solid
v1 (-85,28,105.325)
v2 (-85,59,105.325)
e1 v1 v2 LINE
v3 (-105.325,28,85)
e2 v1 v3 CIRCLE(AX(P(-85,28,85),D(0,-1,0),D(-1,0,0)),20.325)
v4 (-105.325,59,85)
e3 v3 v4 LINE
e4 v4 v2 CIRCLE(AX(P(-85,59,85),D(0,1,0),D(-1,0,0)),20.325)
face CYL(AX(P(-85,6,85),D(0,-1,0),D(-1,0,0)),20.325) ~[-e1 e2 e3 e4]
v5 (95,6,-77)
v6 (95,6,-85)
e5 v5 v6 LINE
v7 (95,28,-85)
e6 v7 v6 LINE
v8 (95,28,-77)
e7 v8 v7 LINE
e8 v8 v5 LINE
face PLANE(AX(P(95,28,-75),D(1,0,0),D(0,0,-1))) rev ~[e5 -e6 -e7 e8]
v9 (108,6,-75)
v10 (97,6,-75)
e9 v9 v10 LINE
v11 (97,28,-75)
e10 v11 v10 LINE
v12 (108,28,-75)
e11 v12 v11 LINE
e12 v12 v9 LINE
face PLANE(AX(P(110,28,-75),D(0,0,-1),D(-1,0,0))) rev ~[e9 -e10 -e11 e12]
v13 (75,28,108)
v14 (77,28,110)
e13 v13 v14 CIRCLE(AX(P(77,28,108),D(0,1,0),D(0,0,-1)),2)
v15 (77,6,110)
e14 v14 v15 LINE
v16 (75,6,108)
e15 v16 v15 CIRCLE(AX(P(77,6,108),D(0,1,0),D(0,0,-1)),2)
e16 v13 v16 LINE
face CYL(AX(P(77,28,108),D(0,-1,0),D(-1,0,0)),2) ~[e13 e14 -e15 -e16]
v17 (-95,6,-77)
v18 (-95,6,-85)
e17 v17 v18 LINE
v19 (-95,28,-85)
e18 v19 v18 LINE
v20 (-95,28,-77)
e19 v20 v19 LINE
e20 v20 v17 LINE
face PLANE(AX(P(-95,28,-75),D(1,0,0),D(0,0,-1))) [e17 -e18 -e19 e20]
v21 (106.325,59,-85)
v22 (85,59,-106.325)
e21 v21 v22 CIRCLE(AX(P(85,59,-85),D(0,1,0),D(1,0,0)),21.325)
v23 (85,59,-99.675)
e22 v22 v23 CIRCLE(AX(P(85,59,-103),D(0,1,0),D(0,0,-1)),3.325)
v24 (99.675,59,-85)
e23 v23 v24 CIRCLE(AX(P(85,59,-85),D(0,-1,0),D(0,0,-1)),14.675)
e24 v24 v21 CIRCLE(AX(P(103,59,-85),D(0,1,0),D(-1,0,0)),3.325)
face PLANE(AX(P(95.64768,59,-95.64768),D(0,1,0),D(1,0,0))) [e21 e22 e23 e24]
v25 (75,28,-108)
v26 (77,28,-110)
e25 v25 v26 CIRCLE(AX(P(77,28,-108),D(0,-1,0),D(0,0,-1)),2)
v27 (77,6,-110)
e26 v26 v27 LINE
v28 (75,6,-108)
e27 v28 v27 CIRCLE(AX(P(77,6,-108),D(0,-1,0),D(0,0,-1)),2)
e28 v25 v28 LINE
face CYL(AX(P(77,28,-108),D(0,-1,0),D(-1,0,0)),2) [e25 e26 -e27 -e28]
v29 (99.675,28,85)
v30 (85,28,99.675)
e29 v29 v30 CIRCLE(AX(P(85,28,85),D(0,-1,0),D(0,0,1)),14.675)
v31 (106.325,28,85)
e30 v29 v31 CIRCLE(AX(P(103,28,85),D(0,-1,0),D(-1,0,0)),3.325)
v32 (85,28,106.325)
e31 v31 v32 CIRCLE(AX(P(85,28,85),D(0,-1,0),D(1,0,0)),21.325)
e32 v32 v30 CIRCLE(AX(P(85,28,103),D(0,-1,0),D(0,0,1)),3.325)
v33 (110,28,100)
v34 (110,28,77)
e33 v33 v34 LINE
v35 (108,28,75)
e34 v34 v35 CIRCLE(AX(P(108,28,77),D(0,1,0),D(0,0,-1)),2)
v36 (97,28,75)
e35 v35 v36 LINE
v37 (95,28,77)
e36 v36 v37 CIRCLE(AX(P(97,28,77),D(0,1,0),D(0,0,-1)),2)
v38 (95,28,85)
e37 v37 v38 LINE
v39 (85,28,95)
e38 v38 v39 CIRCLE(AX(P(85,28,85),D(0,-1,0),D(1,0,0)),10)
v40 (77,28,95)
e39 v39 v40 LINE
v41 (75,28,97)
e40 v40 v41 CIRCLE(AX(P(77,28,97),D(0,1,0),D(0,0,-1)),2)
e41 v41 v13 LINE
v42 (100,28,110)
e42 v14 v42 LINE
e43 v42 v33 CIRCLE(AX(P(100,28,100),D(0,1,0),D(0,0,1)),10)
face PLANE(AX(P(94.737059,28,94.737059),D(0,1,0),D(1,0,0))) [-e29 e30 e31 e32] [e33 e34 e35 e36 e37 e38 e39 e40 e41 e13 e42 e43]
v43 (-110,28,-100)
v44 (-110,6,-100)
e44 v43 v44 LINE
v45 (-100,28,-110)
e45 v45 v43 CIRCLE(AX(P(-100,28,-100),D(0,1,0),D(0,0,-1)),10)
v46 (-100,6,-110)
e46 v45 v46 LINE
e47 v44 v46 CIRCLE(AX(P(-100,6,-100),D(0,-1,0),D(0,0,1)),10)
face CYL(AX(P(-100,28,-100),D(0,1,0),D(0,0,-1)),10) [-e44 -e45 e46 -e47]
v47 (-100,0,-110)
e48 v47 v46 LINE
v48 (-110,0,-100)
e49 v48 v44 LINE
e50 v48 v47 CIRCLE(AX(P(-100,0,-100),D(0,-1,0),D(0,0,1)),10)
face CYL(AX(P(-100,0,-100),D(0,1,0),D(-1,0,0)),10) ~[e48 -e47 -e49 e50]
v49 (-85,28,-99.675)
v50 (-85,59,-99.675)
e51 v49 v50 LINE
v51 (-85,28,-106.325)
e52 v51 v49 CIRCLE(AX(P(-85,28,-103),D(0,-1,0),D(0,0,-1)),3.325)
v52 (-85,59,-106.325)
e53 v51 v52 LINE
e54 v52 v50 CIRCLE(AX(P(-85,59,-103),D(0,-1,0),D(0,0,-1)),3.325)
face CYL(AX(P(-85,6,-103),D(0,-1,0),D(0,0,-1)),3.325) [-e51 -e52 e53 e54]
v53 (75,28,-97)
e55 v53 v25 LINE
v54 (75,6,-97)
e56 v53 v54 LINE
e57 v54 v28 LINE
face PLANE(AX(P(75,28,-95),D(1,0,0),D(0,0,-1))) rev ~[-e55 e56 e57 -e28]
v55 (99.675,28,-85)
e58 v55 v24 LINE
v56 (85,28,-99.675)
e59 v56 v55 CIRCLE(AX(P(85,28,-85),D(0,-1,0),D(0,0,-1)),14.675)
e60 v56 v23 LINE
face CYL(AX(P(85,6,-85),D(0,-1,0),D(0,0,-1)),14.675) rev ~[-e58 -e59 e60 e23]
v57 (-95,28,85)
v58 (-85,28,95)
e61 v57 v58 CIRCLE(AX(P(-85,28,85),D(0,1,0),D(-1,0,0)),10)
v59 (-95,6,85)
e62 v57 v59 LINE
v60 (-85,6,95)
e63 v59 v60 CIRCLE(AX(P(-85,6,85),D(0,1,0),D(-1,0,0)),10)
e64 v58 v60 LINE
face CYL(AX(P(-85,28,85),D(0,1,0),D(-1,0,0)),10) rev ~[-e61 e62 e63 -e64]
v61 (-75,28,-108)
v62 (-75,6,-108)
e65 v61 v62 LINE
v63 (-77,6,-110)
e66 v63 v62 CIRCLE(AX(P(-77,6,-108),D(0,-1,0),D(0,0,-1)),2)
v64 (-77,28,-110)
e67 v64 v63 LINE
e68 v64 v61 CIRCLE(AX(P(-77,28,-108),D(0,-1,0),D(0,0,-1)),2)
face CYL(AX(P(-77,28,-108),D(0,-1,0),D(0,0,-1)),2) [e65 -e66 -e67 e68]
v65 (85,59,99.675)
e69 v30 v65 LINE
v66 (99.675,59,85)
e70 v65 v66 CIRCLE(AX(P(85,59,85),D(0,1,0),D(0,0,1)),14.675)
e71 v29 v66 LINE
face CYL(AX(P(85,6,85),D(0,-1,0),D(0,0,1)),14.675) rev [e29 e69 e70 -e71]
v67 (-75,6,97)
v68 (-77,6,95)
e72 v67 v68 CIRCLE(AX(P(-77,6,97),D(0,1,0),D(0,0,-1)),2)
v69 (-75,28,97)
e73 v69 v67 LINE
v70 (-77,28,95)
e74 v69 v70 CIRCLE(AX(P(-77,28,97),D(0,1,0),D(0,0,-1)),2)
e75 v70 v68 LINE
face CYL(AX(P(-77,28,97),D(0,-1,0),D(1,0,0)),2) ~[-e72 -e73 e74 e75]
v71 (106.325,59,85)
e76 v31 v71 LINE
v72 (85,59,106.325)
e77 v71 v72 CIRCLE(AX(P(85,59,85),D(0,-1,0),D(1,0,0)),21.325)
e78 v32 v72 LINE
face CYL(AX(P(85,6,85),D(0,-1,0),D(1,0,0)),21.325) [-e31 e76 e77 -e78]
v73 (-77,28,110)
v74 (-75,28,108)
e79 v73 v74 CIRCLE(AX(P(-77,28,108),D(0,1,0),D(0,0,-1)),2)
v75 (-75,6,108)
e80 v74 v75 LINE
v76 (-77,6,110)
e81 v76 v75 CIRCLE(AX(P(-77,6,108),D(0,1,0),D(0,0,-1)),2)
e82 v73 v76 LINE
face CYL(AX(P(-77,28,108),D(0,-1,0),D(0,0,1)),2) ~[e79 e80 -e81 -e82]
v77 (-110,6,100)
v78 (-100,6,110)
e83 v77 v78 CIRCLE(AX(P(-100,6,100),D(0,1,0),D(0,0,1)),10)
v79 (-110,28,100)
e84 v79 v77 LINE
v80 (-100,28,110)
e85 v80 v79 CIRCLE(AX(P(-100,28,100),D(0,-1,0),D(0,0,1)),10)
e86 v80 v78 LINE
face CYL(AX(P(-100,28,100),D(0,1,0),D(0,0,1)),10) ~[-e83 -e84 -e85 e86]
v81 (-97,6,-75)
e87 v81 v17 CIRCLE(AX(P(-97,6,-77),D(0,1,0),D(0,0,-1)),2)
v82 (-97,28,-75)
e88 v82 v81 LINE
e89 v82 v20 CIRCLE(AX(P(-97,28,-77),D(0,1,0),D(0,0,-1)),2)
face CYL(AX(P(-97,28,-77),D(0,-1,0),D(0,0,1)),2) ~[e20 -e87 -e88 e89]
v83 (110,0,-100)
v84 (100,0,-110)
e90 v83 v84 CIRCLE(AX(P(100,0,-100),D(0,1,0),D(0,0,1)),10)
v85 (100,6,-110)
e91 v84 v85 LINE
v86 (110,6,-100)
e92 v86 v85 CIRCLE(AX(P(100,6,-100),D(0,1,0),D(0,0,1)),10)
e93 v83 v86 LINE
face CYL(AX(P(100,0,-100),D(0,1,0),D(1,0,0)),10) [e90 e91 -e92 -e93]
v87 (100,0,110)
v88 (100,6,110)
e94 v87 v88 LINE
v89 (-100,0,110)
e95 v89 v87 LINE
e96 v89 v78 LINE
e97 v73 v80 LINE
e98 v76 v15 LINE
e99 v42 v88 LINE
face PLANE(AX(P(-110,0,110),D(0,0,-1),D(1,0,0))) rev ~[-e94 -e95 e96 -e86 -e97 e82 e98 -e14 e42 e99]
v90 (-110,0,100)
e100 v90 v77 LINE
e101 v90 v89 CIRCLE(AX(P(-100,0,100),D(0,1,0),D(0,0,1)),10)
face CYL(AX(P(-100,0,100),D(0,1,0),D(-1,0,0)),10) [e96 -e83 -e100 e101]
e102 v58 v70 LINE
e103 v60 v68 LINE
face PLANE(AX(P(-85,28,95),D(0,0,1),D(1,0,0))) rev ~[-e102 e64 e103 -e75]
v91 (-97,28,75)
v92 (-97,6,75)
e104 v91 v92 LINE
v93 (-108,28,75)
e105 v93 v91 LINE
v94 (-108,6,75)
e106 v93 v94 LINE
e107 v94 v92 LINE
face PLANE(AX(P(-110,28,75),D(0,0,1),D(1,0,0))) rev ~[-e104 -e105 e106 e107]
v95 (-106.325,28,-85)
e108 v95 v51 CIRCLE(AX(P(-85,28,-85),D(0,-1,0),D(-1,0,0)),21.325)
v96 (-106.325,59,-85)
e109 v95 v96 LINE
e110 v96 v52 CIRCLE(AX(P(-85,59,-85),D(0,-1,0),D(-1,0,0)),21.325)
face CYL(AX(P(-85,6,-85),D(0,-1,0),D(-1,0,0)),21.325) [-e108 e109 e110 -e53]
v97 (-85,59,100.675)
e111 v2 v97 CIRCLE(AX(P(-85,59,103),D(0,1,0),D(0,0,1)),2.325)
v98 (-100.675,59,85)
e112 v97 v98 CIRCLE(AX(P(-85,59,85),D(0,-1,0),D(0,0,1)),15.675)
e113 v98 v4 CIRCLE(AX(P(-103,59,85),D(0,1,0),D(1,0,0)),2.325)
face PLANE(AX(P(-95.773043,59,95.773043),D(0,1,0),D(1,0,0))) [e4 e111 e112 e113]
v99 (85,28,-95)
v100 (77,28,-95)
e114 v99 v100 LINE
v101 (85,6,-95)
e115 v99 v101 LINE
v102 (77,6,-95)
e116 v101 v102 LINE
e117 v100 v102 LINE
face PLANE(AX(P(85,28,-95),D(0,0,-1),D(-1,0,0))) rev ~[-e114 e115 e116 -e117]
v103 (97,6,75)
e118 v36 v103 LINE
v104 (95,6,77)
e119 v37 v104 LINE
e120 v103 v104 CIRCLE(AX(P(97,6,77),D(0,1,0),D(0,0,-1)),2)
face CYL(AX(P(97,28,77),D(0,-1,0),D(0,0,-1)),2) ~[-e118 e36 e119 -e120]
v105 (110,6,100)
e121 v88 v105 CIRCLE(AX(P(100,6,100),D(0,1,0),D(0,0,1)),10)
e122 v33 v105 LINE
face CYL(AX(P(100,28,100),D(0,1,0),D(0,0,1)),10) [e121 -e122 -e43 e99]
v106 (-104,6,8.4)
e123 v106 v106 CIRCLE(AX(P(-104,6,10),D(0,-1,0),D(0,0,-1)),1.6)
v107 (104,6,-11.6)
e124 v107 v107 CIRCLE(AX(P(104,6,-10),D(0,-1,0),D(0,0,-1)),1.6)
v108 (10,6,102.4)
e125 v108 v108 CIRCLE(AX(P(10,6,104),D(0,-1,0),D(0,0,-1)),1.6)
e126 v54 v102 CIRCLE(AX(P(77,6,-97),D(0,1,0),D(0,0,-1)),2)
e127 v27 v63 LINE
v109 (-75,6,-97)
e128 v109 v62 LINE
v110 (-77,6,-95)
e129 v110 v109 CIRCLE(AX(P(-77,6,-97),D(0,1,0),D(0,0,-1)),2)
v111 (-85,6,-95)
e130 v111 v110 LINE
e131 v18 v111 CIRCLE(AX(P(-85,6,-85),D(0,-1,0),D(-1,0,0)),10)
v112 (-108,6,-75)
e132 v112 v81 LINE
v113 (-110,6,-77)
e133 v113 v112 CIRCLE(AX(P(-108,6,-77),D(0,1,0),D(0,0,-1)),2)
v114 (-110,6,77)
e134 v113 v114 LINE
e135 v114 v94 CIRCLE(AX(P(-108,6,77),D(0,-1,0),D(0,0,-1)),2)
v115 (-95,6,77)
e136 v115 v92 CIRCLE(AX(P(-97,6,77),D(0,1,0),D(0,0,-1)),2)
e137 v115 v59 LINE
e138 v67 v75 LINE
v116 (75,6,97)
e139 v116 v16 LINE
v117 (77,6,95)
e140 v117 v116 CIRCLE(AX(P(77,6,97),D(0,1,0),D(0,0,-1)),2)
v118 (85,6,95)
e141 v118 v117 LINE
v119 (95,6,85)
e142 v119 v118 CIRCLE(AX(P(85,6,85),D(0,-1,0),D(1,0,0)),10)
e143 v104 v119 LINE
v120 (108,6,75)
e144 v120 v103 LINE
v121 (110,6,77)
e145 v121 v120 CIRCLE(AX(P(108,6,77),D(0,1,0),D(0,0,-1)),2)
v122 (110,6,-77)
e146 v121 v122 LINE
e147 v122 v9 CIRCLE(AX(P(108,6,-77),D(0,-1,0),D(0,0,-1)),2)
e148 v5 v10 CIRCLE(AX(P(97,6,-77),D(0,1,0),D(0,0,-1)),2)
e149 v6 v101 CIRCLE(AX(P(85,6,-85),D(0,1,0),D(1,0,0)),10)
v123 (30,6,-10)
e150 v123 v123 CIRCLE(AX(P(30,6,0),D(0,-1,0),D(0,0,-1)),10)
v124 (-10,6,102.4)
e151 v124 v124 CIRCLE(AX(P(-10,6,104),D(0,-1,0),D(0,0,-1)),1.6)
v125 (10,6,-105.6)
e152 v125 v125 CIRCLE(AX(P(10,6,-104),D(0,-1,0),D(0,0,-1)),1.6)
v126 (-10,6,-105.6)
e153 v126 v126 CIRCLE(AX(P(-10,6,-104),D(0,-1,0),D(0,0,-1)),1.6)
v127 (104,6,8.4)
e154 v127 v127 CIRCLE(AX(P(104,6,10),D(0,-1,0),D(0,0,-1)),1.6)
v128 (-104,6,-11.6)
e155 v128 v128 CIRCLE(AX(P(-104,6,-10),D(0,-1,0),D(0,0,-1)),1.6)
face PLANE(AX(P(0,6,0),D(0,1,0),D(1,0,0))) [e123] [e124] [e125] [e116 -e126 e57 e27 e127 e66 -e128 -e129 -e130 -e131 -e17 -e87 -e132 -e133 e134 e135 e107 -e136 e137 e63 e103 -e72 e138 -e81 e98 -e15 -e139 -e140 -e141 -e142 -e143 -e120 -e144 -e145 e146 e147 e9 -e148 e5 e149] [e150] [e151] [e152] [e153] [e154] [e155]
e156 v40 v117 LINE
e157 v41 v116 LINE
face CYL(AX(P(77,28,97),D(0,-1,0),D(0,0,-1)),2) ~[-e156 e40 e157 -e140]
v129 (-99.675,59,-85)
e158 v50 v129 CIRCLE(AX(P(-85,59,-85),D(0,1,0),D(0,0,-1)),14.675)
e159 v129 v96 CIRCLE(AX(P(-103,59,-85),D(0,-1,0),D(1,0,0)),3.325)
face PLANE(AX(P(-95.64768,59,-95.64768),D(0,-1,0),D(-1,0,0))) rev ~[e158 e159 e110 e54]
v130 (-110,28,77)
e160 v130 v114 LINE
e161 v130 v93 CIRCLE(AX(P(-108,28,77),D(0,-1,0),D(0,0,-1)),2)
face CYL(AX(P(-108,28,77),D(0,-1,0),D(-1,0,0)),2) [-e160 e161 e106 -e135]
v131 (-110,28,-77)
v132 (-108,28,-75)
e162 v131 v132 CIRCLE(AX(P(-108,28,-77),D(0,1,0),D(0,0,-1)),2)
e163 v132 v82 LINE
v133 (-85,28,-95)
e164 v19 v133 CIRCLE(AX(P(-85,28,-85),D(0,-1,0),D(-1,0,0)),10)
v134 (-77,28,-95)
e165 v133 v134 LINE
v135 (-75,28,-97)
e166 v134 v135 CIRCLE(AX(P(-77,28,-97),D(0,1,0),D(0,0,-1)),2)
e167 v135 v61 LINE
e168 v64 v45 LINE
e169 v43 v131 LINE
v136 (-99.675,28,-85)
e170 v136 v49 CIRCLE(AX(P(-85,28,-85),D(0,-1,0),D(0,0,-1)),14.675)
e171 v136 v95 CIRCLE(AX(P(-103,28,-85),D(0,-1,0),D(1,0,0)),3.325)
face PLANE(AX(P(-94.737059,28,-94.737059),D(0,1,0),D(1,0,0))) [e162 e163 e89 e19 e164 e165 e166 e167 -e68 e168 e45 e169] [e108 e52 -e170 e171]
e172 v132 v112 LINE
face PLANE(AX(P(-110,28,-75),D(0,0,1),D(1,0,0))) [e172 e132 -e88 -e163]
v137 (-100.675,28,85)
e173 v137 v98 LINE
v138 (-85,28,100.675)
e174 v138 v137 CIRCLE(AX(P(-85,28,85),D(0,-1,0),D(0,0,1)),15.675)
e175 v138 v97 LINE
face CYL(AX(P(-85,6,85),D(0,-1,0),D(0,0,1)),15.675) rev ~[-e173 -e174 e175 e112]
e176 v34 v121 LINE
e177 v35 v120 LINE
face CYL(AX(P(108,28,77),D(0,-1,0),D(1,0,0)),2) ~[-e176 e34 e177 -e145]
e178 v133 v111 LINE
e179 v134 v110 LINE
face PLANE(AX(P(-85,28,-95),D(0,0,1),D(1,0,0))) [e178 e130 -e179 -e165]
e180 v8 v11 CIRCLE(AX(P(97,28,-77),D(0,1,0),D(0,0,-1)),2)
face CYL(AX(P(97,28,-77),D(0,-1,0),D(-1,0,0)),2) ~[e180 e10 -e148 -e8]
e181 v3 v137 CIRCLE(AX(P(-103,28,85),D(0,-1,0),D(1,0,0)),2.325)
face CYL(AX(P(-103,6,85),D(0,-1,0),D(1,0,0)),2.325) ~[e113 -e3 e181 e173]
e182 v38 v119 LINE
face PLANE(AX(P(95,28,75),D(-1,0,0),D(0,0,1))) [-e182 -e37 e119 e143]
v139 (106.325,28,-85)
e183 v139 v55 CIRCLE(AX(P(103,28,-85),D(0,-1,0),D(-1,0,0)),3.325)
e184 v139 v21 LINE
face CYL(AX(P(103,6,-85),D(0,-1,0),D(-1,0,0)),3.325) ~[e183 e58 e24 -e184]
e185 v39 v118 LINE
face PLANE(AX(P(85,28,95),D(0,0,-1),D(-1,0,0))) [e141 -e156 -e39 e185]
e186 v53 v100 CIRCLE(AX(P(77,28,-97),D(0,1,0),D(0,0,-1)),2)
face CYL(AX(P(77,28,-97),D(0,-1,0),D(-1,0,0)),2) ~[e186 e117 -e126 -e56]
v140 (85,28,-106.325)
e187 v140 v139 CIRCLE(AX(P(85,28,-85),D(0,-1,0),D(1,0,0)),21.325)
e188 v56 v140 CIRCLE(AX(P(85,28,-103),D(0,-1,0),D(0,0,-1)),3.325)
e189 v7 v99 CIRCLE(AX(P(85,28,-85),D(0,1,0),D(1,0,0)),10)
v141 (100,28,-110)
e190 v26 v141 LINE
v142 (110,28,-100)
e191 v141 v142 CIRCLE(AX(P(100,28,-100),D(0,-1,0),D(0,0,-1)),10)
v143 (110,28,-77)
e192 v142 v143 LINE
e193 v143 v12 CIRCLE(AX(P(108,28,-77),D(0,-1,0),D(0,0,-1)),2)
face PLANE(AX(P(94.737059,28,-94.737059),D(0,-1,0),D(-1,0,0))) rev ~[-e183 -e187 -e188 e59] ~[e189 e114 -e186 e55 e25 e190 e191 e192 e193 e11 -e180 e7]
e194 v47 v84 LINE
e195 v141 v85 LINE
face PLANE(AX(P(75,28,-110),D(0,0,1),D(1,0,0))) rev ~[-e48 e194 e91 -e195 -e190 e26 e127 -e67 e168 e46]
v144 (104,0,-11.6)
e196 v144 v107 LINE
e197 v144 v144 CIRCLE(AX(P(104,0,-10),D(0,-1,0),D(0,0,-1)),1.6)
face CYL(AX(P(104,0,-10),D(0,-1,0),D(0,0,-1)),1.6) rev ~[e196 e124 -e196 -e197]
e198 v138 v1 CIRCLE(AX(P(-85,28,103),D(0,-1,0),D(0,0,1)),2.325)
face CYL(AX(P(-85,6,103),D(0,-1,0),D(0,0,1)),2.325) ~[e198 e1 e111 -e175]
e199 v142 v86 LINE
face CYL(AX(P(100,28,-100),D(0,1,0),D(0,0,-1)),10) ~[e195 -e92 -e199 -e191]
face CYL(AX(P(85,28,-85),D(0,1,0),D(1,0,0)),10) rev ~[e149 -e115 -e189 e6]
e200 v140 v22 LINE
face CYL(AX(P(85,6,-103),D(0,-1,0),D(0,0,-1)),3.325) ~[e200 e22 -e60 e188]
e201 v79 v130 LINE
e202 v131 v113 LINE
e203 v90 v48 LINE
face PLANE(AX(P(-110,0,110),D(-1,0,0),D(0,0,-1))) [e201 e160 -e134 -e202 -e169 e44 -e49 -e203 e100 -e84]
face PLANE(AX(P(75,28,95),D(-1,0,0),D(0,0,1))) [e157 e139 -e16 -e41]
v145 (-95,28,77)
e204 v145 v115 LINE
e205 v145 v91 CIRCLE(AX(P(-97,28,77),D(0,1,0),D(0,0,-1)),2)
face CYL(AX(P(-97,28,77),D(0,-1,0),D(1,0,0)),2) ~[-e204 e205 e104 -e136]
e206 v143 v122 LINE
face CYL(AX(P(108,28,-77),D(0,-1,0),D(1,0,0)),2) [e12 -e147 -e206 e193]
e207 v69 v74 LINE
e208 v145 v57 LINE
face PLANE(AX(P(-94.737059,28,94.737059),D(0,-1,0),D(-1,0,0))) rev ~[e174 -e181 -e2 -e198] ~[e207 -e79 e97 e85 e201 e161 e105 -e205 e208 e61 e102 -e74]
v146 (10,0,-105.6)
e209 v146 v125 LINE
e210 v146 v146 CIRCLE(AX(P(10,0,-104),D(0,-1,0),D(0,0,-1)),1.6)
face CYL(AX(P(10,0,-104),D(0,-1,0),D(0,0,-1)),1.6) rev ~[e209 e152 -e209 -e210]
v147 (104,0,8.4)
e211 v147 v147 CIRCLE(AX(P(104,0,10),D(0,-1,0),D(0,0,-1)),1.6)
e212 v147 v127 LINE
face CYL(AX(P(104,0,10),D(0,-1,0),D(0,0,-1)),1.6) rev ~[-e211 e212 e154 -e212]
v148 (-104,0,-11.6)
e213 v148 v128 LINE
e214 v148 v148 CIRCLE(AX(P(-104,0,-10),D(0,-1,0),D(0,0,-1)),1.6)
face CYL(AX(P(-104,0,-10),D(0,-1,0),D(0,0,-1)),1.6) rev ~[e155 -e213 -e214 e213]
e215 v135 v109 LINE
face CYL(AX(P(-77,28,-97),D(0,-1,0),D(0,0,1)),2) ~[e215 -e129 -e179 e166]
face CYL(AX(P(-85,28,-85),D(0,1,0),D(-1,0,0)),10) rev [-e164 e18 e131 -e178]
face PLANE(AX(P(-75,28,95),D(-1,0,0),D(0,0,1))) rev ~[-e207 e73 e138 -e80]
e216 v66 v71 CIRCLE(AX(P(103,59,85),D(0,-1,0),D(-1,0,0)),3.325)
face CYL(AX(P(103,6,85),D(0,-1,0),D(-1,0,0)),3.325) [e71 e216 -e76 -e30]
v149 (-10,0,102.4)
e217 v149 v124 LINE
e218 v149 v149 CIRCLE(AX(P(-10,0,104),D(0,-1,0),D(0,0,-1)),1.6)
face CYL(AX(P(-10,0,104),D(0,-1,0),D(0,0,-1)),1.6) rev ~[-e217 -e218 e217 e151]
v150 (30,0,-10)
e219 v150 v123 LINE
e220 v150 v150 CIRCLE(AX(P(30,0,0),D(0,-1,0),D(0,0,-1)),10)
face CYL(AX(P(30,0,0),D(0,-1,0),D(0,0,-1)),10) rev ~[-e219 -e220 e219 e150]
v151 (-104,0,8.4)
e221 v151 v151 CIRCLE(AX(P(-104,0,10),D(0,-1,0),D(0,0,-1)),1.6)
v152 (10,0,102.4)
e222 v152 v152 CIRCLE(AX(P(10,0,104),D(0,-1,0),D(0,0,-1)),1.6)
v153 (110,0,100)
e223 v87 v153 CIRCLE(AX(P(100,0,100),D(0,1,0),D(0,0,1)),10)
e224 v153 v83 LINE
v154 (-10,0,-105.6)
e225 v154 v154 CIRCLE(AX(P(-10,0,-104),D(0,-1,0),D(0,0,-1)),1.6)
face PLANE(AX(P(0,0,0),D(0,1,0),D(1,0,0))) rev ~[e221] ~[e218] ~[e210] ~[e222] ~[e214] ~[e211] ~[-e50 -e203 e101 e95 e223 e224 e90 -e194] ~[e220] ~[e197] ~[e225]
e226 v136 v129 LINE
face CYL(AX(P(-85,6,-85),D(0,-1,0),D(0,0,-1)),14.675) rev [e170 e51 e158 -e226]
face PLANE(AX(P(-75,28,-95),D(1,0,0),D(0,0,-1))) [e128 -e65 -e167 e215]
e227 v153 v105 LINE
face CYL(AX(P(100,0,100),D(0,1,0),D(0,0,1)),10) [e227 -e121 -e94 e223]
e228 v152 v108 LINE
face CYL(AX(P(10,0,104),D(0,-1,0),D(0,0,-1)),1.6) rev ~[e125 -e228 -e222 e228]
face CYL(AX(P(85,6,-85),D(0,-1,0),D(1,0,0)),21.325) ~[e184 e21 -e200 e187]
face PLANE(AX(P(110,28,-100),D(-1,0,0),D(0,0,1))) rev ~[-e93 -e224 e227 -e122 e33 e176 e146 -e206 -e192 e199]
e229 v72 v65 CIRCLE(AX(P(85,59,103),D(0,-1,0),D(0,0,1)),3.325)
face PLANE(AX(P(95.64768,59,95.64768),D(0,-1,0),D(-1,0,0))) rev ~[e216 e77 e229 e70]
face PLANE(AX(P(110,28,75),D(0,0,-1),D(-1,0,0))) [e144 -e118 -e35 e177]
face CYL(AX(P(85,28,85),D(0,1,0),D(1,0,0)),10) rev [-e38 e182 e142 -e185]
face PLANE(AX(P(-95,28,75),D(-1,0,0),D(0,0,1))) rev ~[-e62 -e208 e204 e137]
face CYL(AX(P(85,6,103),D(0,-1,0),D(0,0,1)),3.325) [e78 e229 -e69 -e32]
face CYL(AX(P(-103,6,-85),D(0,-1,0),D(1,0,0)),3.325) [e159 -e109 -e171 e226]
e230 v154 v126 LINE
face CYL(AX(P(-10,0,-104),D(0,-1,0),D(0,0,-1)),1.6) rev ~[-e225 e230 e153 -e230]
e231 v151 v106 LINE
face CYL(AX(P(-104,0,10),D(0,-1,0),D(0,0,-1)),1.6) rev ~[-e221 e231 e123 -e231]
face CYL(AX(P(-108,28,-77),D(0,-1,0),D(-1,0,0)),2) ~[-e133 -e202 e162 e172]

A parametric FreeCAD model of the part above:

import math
import FreeCAD as App
import Part
import Sketcher

V = App.Vector
Q = App.Units.Quantity


def edges_at(feature, points):
    """Names of the edges that pass closest to the given points."""
    edges = feature.Shape.Edges
    near = lambda p: min(range(len(edges)), key=lambda i: edges[i].distToShape(Part.Vertex(*p))[0])
    return sorted({f"Edge{near(p) + 1}" for p in points})

doc = App.newDocument("Part")
body = doc.addObject("PartDesign::Body", "Body")

# Sketch on XZ plane
sketch1 = body.newObject("Sketcher::SketchObject", "Sketch")
sketch1.AttachmentSupport = (doc.getObject("XZ_Plane"), [""])
sketch1.MapMode = "FlatFace"
sketch1.addGeometry(Part.LineSegment(V(-110, -110, 0), V(-110, 110, 0)), False)
sketch1.addGeometry(Part.LineSegment(V(-110, 110, 0), V(110, 110, 0)), False)
sketch1.addGeometry(Part.LineSegment(V(110, 110, 0), V(110, -110, 0)), False)
sketch1.addGeometry(Part.LineSegment(V(110, -110, 0), V(-110, -110, 0)), False)
sketch1.addConstraint(Sketcher.Constraint("Coincident", 0, 2, 1, 1))
sketch1.addConstraint(Sketcher.Constraint("Coincident", 1, 2, 2, 1))
sketch1.addConstraint(Sketcher.Constraint("Coincident", 2, 2, 3, 1))
sketch1.addConstraint(Sketcher.Constraint("Coincident", 3, 2, 0, 1))
sketch1.addConstraint(Sketcher.Constraint("Vertical", 0))
sketch1.addConstraint(Sketcher.Constraint("Horizontal", 1))
sketch1.addConstraint(Sketcher.Constraint("Vertical", 2))
sketch1.addConstraint(Sketcher.Constraint("Horizontal", 3))
sketch1.addConstraint(Sketcher.Constraint("Symmetric", 0, 2, 2, 2, -1, 1))
sketch1.addConstraint(Sketcher.Constraint("Equal", 3, 0))
sketch1.addConstraint(Sketcher.Constraint("DistanceX", 1, 1, 1, 2, Q("220 mm")))
pad1 = body.newObject("PartDesign::Pad", "Pad")
pad1.Profile = sketch1
pad1.Length = 6
pad1.Reversed = True
doc.recompute()

fillet = body.newObject("PartDesign::Fillet", "Fillet")
fillet.Base = (pad1, edges_at(pad1, [
    (110, 3, 110),
    (-110, 3, 110),
    (-110, 3, -110),
    (110, 3, -110),
]))
fillet.Radius = 10

# Sketch on XZ plane
sketch2 = body.newObject("Sketcher::SketchObject", "Sketch001")
sketch2.AttachmentSupport = (doc.getObject("XZ_Plane"), [""])
sketch2.MapMode = "FlatFace"
sketch2.AttachmentOffset = App.Placement(V(0, 0, -6), App.Rotation())
sketch2.addGeometry(Part.ArcOfCircle(Part.Circle(V(-85, 85, 0), V(0, 0, 1), 20.3), math.radians(90), math.radians(180)), False)
sketch2.addGeometry(Part.ArcOfCircle(Part.Circle(V(-85, 103, 0), V(0, 0, 1), 2.3), math.radians(-90), math.radians(90)), False)
sketch2.addGeometry(Part.ArcOfCircle(Part.Circle(V(-85, 85, 0), V(0, 0, 1), 15.7), math.radians(90), math.radians(180)), False)
sketch2.addGeometry(Part.ArcOfCircle(Part.Circle(V(-103, 85, 0), V(0, 0, 1), 2.3), math.radians(180), math.radians(360)), False)
sketch2.addGeometry(Part.ArcOfCircle(Part.Circle(V(85, 85, 0), V(0, 0, 1), 21.3), math.radians(0), math.radians(90)), False)
sketch2.addGeometry(Part.ArcOfCircle(Part.Circle(V(103, 85, 0), V(0, 0, 1), 3.3), math.radians(180), math.radians(360)), False)
sketch2.addGeometry(Part.ArcOfCircle(Part.Circle(V(85, 85, 0), V(0, 0, 1), 14.7), math.radians(0), math.radians(90)), False)
sketch2.addGeometry(Part.ArcOfCircle(Part.Circle(V(85, 103, 0), V(0, 0, 1), 3.3), math.radians(90), math.radians(270)), False)
sketch2.addGeometry(Part.ArcOfCircle(Part.Circle(V(85, -85, 0), V(0, 0, 1), 21.3), math.radians(-90), math.radians(0)), False)
sketch2.addGeometry(Part.ArcOfCircle(Part.Circle(V(85, -103, 0), V(0, 0, 1), 3.3), math.radians(90), math.radians(270)), False)
sketch2.addGeometry(Part.ArcOfCircle(Part.Circle(V(85, -85, 0), V(0, 0, 1), 14.7), math.radians(-90), math.radians(0)), False)
sketch2.addGeometry(Part.ArcOfCircle(Part.Circle(V(103, -85, 0), V(0, 0, 1), 3.3), math.radians(0), math.radians(180)), False)
sketch2.addGeometry(Part.ArcOfCircle(Part.Circle(V(-85, -85, 0), V(0, 0, 1), 21.3), math.radians(180), math.radians(270)), False)
sketch2.addGeometry(Part.ArcOfCircle(Part.Circle(V(-103, -85, 0), V(0, 0, 1), 3.3), math.radians(0), math.radians(180)), False)
sketch2.addGeometry(Part.ArcOfCircle(Part.Circle(V(-85, -85, 0), V(0, 0, 1), 14.7), math.radians(180), math.radians(270)), False)
sketch2.addGeometry(Part.ArcOfCircle(Part.Circle(V(-85, -103, 0), V(0, 0, 1), 3.3), math.radians(-90), math.radians(90)), False)
sketch2.addConstraint(Sketcher.Constraint("Tangent", 0, 1, 1, 2))
sketch2.addConstraint(Sketcher.Constraint("Tangent", 1, 1, 2, 1))
sketch2.addConstraint(Sketcher.Constraint("Tangent", 2, 2, 3, 2))
sketch2.addConstraint(Sketcher.Constraint("Tangent", 3, 1, 0, 2))
sketch2.addConstraint(Sketcher.Constraint("Tangent", 4, 1, 5, 2))
sketch2.addConstraint(Sketcher.Constraint("Tangent", 5, 1, 6, 1))
sketch2.addConstraint(Sketcher.Constraint("Tangent", 6, 2, 7, 2))
sketch2.addConstraint(Sketcher.Constraint("Tangent", 7, 1, 4, 2))
sketch2.addConstraint(Sketcher.Constraint("Tangent", 8, 1, 9, 2))
sketch2.addConstraint(Sketcher.Constraint("Tangent", 9, 1, 10, 1))
sketch2.addConstraint(Sketcher.Constraint("Tangent", 10, 2, 11, 2))
sketch2.addConstraint(Sketcher.Constraint("Tangent", 11, 1, 8, 2))
sketch2.addConstraint(Sketcher.Constraint("Tangent", 12, 1, 13, 2))
sketch2.addConstraint(Sketcher.Constraint("Tangent", 13, 1, 14, 1))
sketch2.addConstraint(Sketcher.Constraint("Tangent", 14, 2, 15, 2))
sketch2.addConstraint(Sketcher.Constraint("Tangent", 15, 1, 12, 2))
sketch2.addConstraint(Sketcher.Constraint("Coincident", 2, 3, 0, 3))
sketch2.addConstraint(Sketcher.Constraint("Coincident", 6, 3, 4, 3))
sketch2.addConstraint(Sketcher.Constraint("Coincident", 10, 3, 8, 3))
sketch2.addConstraint(Sketcher.Constraint("Coincident", 14, 3, 12, 3))
sketch2.addConstraint(Sketcher.Constraint("Equal", 4, 8))
sketch2.addConstraint(Sketcher.Constraint("Equal", 7, 9))
sketch2.addConstraint(Sketcher.Constraint("Equal", 8, 12))
sketch2.addConstraint(Sketcher.Constraint("Equal", 11, 13))
sketch2.addConstraint(Sketcher.Constraint("Symmetric", 0, 3, 8, 3, -1, 1))
sketch2.addConstraint(Sketcher.Constraint("Symmetric", 1, 3, 9, 3, -1, 1))
sketch2.addConstraint(Sketcher.Constraint("Symmetric", 4, 3, 12, 3, -1, 1))
sketch2.addConstraint(Sketcher.Constraint("Symmetric", 0, 3, 4, 3, -2))
sketch2.addConstraint(Sketcher.Constraint("Horizontal", 2, 3, 3, 3))
sketch2.addConstraint(Sketcher.Constraint("Horizontal", 4, 3, 5, 3))
sketch2.addConstraint(Sketcher.Constraint("Horizontal", 10, 3, 11, 3))
sketch2.addConstraint(Sketcher.Constraint("Horizontal", 12, 3, 13, 3))
sketch2.addConstraint(Sketcher.Constraint("Vertical", 0, 3, 1, 3))
sketch2.addConstraint(Sketcher.Constraint("Vertical", 6, 3, 7, 3))
sketch2.addConstraint(Sketcher.Constraint("Vertical", 14, 3, 15, 3))
sketch2.addConstraint(Sketcher.Constraint("DistanceX", 0, 3, -1, 1, Q("85 mm")))
sketch2.addConstraint(Sketcher.Constraint("DistanceY", -1, 1, 0, 3, Q("85 mm")))
sketch2.addConstraint(Sketcher.Constraint("DistanceY", -1, 1, 1, 3, Q("103 mm")))
sketch2.addConstraint(Sketcher.Constraint("Radius", 0, Q("20.325 mm")))
sketch2.addConstraint(Sketcher.Constraint("Radius", 4, Q("21.325 mm")))
pad2 = body.newObject("PartDesign::Pad", "Pad001")
pad2.Profile = sketch2
pad2.Length = 53
pad2.Reversed = True

# Sketch on XZ plane
sketch3 = body.newObject("Sketcher::SketchObject", "Sketch002")
sketch3.AttachmentSupport = (doc.getObject("XZ_Plane"), [""])
sketch3.MapMode = "FlatFace"
sketch3.AttachmentOffset = App.Placement(V(0, 0, -28), App.Rotation())
sketch3.addGeometry(Part.LineSegment(V(75, -110, 0), V(75, -95, 0)), False)
sketch3.addGeometry(Part.LineSegment(V(75, -95, 0), V(85, -95, 0)), False)
sketch3.addGeometry(Part.ArcOfCircle(Part.Circle(V(85, -85, 0), V(0, 0, 1), 10), math.radians(-90), math.radians(0)), False)
sketch3.addGeometry(Part.LineSegment(V(95, -85, 0), V(95, -75, 0)), False)
sketch3.addGeometry(Part.LineSegment(V(95, -75, 0), V(110, -75, 0)), False)
sketch3.addGeometry(Part.LineSegment(V(110, -75, 0), V(110, -100, 0)), False)
sketch3.addGeometry(Part.ArcOfCircle(Part.Circle(V(100, -100, 0), V(0, 0, 1), 10), math.radians(-90), math.radians(0)), False)
sketch3.addGeometry(Part.LineSegment(V(100, -110, 0), V(75, -110, 0)), False)
sketch3.addGeometry(Part.LineSegment(V(-75, -110, 0), V(-100, -110, 0)), False)
sketch3.addGeometry(Part.ArcOfCircle(Part.Circle(V(-100, -100, 0), V(0, 0, 1), 10), math.radians(180), math.radians(270)), False)
sketch3.addGeometry(Part.LineSegment(V(-110, -100, 0), V(-110, -75, 0)), False)
sketch3.addGeometry(Part.LineSegment(V(-110, -75, 0), V(-95, -75, 0)), False)
sketch3.addGeometry(Part.LineSegment(V(-95, -75, 0), V(-95, -85, 0)), False)
sketch3.addGeometry(Part.ArcOfCircle(Part.Circle(V(-85, -85, 0), V(0, 0, 1), 10), math.radians(180), math.radians(270)), False)
sketch3.addGeometry(Part.LineSegment(V(-85, -95, 0), V(-75, -95, 0)), False)
sketch3.addGeometry(Part.LineSegment(V(-75, -95, 0), V(-75, -110, 0)), False)
sketch3.addGeometry(Part.LineSegment(V(-75, 110, 0), V(-75, 95, 0)), False)
sketch3.addGeometry(Part.LineSegment(V(-75, 95, 0), V(-85, 95, 0)), False)
sketch3.addGeometry(Part.ArcOfCircle(Part.Circle(V(-85, 85, 0), V(0, 0, 1), 10), math.radians(90), math.radians(180)), False)
sketch3.addGeometry(Part.LineSegment(V(-95, 85, 0), V(-95, 75, 0)), False)
sketch3.addGeometry(Part.LineSegment(V(-95, 75, 0), V(-110, 75, 0)), False)
sketch3.addGeometry(Part.LineSegment(V(-110, 75, 0), V(-110, 100, 0)), False)
sketch3.addGeometry(Part.ArcOfCircle(Part.Circle(V(-100, 100, 0), V(0, 0, 1), 10), math.radians(90), math.radians(180)), False)
sketch3.addGeometry(Part.LineSegment(V(-100, 110, 0), V(-75, 110, 0)), False)
sketch3.addGeometry(Part.LineSegment(V(75, 110, 0), V(100, 110, 0)), False)
sketch3.addGeometry(Part.ArcOfCircle(Part.Circle(V(100, 100, 0), V(0, 0, 1), 10), math.radians(0), math.radians(90)), False)
sketch3.addGeometry(Part.LineSegment(V(110, 100, 0), V(110, 75, 0)), False)
sketch3.addGeometry(Part.LineSegment(V(110, 75, 0), V(95, 75, 0)), False)
sketch3.addGeometry(Part.LineSegment(V(95, 75, 0), V(95, 85, 0)), False)
sketch3.addGeometry(Part.ArcOfCircle(Part.Circle(V(85, 85, 0), V(0, 0, 1), 10), math.radians(0), math.radians(90)), False)
sketch3.addGeometry(Part.LineSegment(V(85, 95, 0), V(75, 95, 0)), False)
sketch3.addGeometry(Part.LineSegment(V(75, 95, 0), V(75, 110, 0)), False)
sketch3.addConstraint(Sketcher.Constraint("Coincident", 0, 2, 1, 1))
sketch3.addConstraint(Sketcher.Constraint("Tangent", 1, 2, 2, 1))
sketch3.addConstraint(Sketcher.Constraint("Tangent", 2, 2, 3, 1))
sketch3.addConstraint(Sketcher.Constraint("Coincident", 3, 2, 4, 1))
sketch3.addConstraint(Sketcher.Constraint("Coincident", 4, 2, 5, 1))
sketch3.addConstraint(Sketcher.Constraint("Tangent", 5, 2, 6, 2))
sketch3.addConstraint(Sketcher.Constraint("Tangent", 6, 1, 7, 1))
sketch3.addConstraint(Sketcher.Constraint("Coincident", 7, 2, 0, 1))
sketch3.addConstraint(Sketcher.Constraint("Tangent", 8, 2, 9, 2))
sketch3.addConstraint(Sketcher.Constraint("Tangent", 9, 1, 10, 1))
sketch3.addConstraint(Sketcher.Constraint("Coincident", 10, 2, 11, 1))
sketch3.addConstraint(Sketcher.Constraint("Coincident", 11, 2, 12, 1))
sketch3.addConstraint(Sketcher.Constraint("Tangent", 12, 2, 13, 1))
sketch3.addConstraint(Sketcher.Constraint("Tangent", 13, 2, 14, 1))
sketch3.addConstraint(Sketcher.Constraint("Coincident", 14, 2, 15, 1))
sketch3.addConstraint(Sketcher.Constraint("Coincident", 15, 2, 8, 1))
sketch3.addConstraint(Sketcher.Constraint("Coincident", 16, 2, 17, 1))
sketch3.addConstraint(Sketcher.Constraint("Tangent", 17, 2, 18, 1))
sketch3.addConstraint(Sketcher.Constraint("Tangent", 18, 2, 19, 1))
sketch3.addConstraint(Sketcher.Constraint("Coincident", 19, 2, 20, 1))
sketch3.addConstraint(Sketcher.Constraint("Coincident", 20, 2, 21, 1))
sketch3.addConstraint(Sketcher.Constraint("Tangent", 21, 2, 22, 2))
sketch3.addConstraint(Sketcher.Constraint("Tangent", 22, 1, 23, 1))
sketch3.addConstraint(Sketcher.Constraint("Coincident", 23, 2, 16, 1))
sketch3.addConstraint(Sketcher.Constraint("Tangent", 24, 2, 25, 2))
sketch3.addConstraint(Sketcher.Constraint("Tangent", 25, 1, 26, 1))
sketch3.addConstraint(Sketcher.Constraint("Coincident", 26, 2, 27, 1))
sketch3.addConstraint(Sketcher.Constraint("Coincident", 27, 2, 28, 1))
sketch3.addConstraint(Sketcher.Constraint("Tangent", 28, 2, 29, 1))
sketch3.addConstraint(Sketcher.Constraint("Tangent", 29, 2, 30, 1))
sketch3.addConstraint(Sketcher.Constraint("Coincident", 30, 2, 31, 1))
sketch3.addConstraint(Sketcher.Constraint("Coincident", 31, 2, 24, 1))
sketch3.addConstraint(Sketcher.Constraint("Vertical", 0))
sketch3.addConstraint(Sketcher.Constraint("Horizontal", 1))
sketch3.addConstraint(Sketcher.Constraint("Vertical", 3))
sketch3.addConstraint(Sketcher.Constraint("Horizontal", 4))
sketch3.addConstraint(Sketcher.Constraint("Vertical", 5))
sketch3.addConstraint(Sketcher.Constraint("Horizontal", 7))
sketch3.addConstraint(Sketcher.Constraint("Horizontal", 8))
sketch3.addConstraint(Sketcher.Constraint("Vertical", 10))
sketch3.addConstraint(Sketcher.Constraint("Horizontal", 11))
sketch3.addConstraint(Sketcher.Constraint("Vertical", 12))
sketch3.addConstraint(Sketcher.Constraint("Horizontal", 14))
sketch3.addConstraint(Sketcher.Constraint("Vertical", 15))
sketch3.addConstraint(Sketcher.Constraint("Vertical", 16))
sketch3.addConstraint(Sketcher.Constraint("Horizontal", 17))
sketch3.addConstraint(Sketcher.Constraint("Vertical", 19))
sketch3.addConstraint(Sketcher.Constraint("Horizontal", 20))
sketch3.addConstraint(Sketcher.Constraint("Vertical", 21))
sketch3.addConstraint(Sketcher.Constraint("Horizontal", 23))
sketch3.addConstraint(Sketcher.Constraint("Horizontal", 24))
sketch3.addConstraint(Sketcher.Constraint("Vertical", 26))
sketch3.addConstraint(Sketcher.Constraint("Horizontal", 27))
sketch3.addConstraint(Sketcher.Constraint("Vertical", 28))
sketch3.addConstraint(Sketcher.Constraint("Horizontal", 30))
sketch3.addConstraint(Sketcher.Constraint("Vertical", 31))
sketch3.addConstraint(Sketcher.Constraint("Equal", 2, 6))
sketch3.addConstraint(Sketcher.Constraint("Equal", 6, 9))
sketch3.addConstraint(Sketcher.Constraint("Equal", 9, 13))
sketch3.addConstraint(Sketcher.Constraint("Equal", 13, 18))
sketch3.addConstraint(Sketcher.Constraint("Equal", 18, 22))
sketch3.addConstraint(Sketcher.Constraint("Equal", 22, 25))
sketch3.addConstraint(Sketcher.Constraint("Equal", 25, 29))
sketch3.addConstraint(Sketcher.Constraint("Symmetric", 2, 3, 18, 3, -1, 1))
sketch3.addConstraint(Sketcher.Constraint("Symmetric", 6, 3, 22, 3, -1, 1))
sketch3.addConstraint(Sketcher.Constraint("Symmetric", 9, 3, 25, 3, -1, 1))
sketch3.addConstraint(Sketcher.Constraint("Symmetric", 13, 3, 29, 3, -1, 1))
sketch3.addConstraint(Sketcher.Constraint("Symmetric", 6, 3, 9, 3, -2))
sketch3.addConstraint(Sketcher.Constraint("Symmetric", 2, 3, 13, 3, -2))
sketch3.addConstraint(Sketcher.Constraint("Horizontal", 4, 2, 10, 2))
sketch3.addConstraint(Sketcher.Constraint("Horizontal", 20, 2, 26, 2))
sketch3.addConstraint(Sketcher.Constraint("Vertical", 15, 2, 16, 2))
sketch3.addConstraint(Sketcher.Constraint("Vertical", 7, 2, 30, 2))
sketch3.addConstraint(Sketcher.Constraint("Equal", 7, 8))
sketch3.addConstraint(Sketcher.Constraint("Equal", 27, 0))
sketch3.addConstraint(Sketcher.Constraint("Equal", 30, 3))
sketch3.addConstraint(Sketcher.Constraint("Equal", 12, 19))
sketch3.addConstraint(Sketcher.Constraint("Radius", 2, Q("10 mm")))
sketch3.addConstraint(Sketcher.Constraint("DistanceX", 1, 1, 1, 2, Q("10 mm")))
sketch3.addConstraint(Sketcher.Constraint("DistanceX", 4, 1, 4, 2, Q("15 mm")))
sketch3.addConstraint(Sketcher.Constraint("DistanceX", -1, 1, 2, 3, Q("85 mm")))
sketch3.addConstraint(Sketcher.Constraint("DistanceY", 2, 3, -1, 1, Q("85 mm")))
pad3 = body.newObject("PartDesign::Pad", "Pad002")
pad3.Profile = sketch3
pad3.Length = 22
doc.recompute()

fillet2 = body.newObject("PartDesign::Fillet", "Fillet001")
fillet2.Base = (pad3, edges_at(pad3, [
    (75, 17, -95),
    (95, 17, -75),
    (110, 17, -75),
    (75, 17, -110),
    (-110, 17, -75),
    (-95, 17, -75),
    (-75, 17, -95),
    (-75, 17, -110),
    (-95, 17, 75),
    (-110, 17, 75),
    (-75, 17, 110),
    (-75, 17, 95),
    (110, 17, 75),
    (95, 17, 75),
    (75, 17, 95),
    (75, 17, 110),
]))
fillet2.Radius = 2

# Sketch on XZ plane
sketch4 = body.newObject("Sketcher::SketchObject", "Sketch003")
sketch4.AttachmentSupport = (doc.getObject("XZ_Plane"), [""])
sketch4.MapMode = "FlatFace"
sketch4.addGeometry(Part.Circle(V(30, 0, 0), V(0, 0, 1), 10), False)
sketch4.addConstraint(Sketcher.Constraint("PointOnObject", 0, 3, -1))
sketch4.addConstraint(Sketcher.Constraint("Diameter", 0, Q("20 mm")))
sketch4.addConstraint(Sketcher.Constraint("DistanceX", -1, 1, 0, 3, Q("30 mm")))
pocket1 = body.newObject("PartDesign::Pocket", "Pocket")
pocket1.Profile = sketch4
pocket1.Type = "UpToFirst"

# Sketch on XZ plane
sketch5 = body.newObject("Sketcher::SketchObject", "Sketch004")
sketch5.AttachmentSupport = (doc.getObject("XZ_Plane"), [""])
sketch5.MapMode = "FlatFace"
sketch5.addGeometry(Part.Circle(V(-104, 10, 0), V(0, 0, 1), 1.6), False)
sketch5.addConstraint(Sketcher.Constraint("Diameter", 0, Q("3.2 mm")))
sketch5.addConstraint(Sketcher.Constraint("DistanceX", 0, 3, -1, 1, Q("104 mm")))
sketch5.addConstraint(Sketcher.Constraint("DistanceY", -1, 1, 0, 3, Q("10 mm")))
pocket2 = body.newObject("PartDesign::Pocket", "Pocket001")
pocket2.Profile = sketch5
pocket2.Type = "UpToFirst"

# Sketch on XZ plane
sketch6 = body.newObject("Sketcher::SketchObject", "Sketch005")
sketch6.AttachmentSupport = (doc.getObject("XZ_Plane"), [""])
sketch6.MapMode = "FlatFace"
sketch6.addGeometry(Part.Circle(V(-104, -10, 0), V(0, 0, 1), 1.6), False)
sketch6.addConstraint(Sketcher.Constraint("Diameter", 0, Q("3.2 mm")))
sketch6.addConstraint(Sketcher.Constraint("DistanceX", 0, 3, -1, 1, Q("104 mm")))
sketch6.addConstraint(Sketcher.Constraint("DistanceY", 0, 3, -1, 1, Q("10 mm")))
pocket3 = body.newObject("PartDesign::Pocket", "Pocket002")
pocket3.Profile = sketch6
pocket3.Type = "UpToFirst"

# Sketch on XZ plane
sketch7 = body.newObject("Sketcher::SketchObject", "Sketch006")
sketch7.AttachmentSupport = (doc.getObject("XZ_Plane"), [""])
sketch7.MapMode = "FlatFace"
sketch7.addGeometry(Part.Circle(V(-10, 104, 0), V(0, 0, 1), 1.6), False)
sketch7.addConstraint(Sketcher.Constraint("Diameter", 0, Q("3.2 mm")))
sketch7.addConstraint(Sketcher.Constraint("DistanceX", 0, 3, -1, 1, Q("10 mm")))
sketch7.addConstraint(Sketcher.Constraint("DistanceY", -1, 1, 0, 3, Q("104 mm")))
pocket4 = body.newObject("PartDesign::Pocket", "Pocket003")
pocket4.Profile = sketch7
pocket4.Type = "UpToFirst"

# Sketch on XZ plane
sketch8 = body.newObject("Sketcher::SketchObject", "Sketch007")
sketch8.AttachmentSupport = (doc.getObject("XZ_Plane"), [""])
sketch8.MapMode = "FlatFace"
sketch8.addGeometry(Part.Circle(V(10, 104, 0), V(0, 0, 1), 1.6), False)
sketch8.addConstraint(Sketcher.Constraint("Diameter", 0, Q("3.2 mm")))
sketch8.addConstraint(Sketcher.Constraint("DistanceX", -1, 1, 0, 3, Q("10 mm")))
sketch8.addConstraint(Sketcher.Constraint("DistanceY", -1, 1, 0, 3, Q("104 mm")))
pocket5 = body.newObject("PartDesign::Pocket", "Pocket004")
pocket5.Profile = sketch8
pocket5.Type = "UpToFirst"

# Sketch on XZ plane
sketch9 = body.newObject("Sketcher::SketchObject", "Sketch008")
sketch9.AttachmentSupport = (doc.getObject("XZ_Plane"), [""])
sketch9.MapMode = "FlatFace"
sketch9.addGeometry(Part.Circle(V(104, 10, 0), V(0, 0, 1), 1.6), False)
sketch9.addConstraint(Sketcher.Constraint("Diameter", 0, Q("3.2 mm")))
sketch9.addConstraint(Sketcher.Constraint("DistanceX", -1, 1, 0, 3, Q("104 mm")))
sketch9.addConstraint(Sketcher.Constraint("DistanceY", -1, 1, 0, 3, Q("10 mm")))
pocket6 = body.newObject("PartDesign::Pocket", "Pocket005")
pocket6.Profile = sketch9
pocket6.Type = "UpToFirst"

# Sketch on XZ plane
sketch10 = body.newObject("Sketcher::SketchObject", "Sketch009")
sketch10.AttachmentSupport = (doc.getObject("XZ_Plane"), [""])
sketch10.MapMode = "FlatFace"
sketch10.addGeometry(Part.Circle(V(104, -10, 0), V(0, 0, 1), 1.6), False)
sketch10.addConstraint(Sketcher.Constraint("Diameter", 0, Q("3.2 mm")))
sketch10.addConstraint(Sketcher.Constraint("DistanceX", -1, 1, 0, 3, Q("104 mm")))
sketch10.addConstraint(Sketcher.Constraint("DistanceY", 0, 3, -1, 1, Q("10 mm")))
pocket7 = body.newObject("PartDesign::Pocket", "Pocket006")
pocket7.Profile = sketch10
pocket7.Type = "UpToFirst"

# Sketch on XZ plane
sketch11 = body.newObject("Sketcher::SketchObject", "Sketch010")
sketch11.AttachmentSupport = (doc.getObject("XZ_Plane"), [""])
sketch11.MapMode = "FlatFace"
sketch11.addGeometry(Part.Circle(V(10, -104, 0), V(0, 0, 1), 1.6), False)
sketch11.addConstraint(Sketcher.Constraint("Diameter", 0, Q("3.2 mm")))
sketch11.addConstraint(Sketcher.Constraint("DistanceX", -1, 1, 0, 3, Q("10 mm")))
sketch11.addConstraint(Sketcher.Constraint("DistanceY", 0, 3, -1, 1, Q("104 mm")))
pocket8 = body.newObject("PartDesign::Pocket", "Pocket007")
pocket8.Profile = sketch11
pocket8.Type = "UpToFirst"

# Sketch on XZ plane
sketch12 = body.newObject("Sketcher::SketchObject", "Sketch011")
sketch12.AttachmentSupport = (doc.getObject("XZ_Plane"), [""])
sketch12.MapMode = "FlatFace"
sketch12.addGeometry(Part.Circle(V(-10, -104, 0), V(0, 0, 1), 1.6), False)
sketch12.addConstraint(Sketcher.Constraint("Diameter", 0, Q("3.2 mm")))
sketch12.addConstraint(Sketcher.Constraint("DistanceX", 0, 3, -1, 1, Q("10 mm")))
sketch12.addConstraint(Sketcher.Constraint("DistanceY", 0, 3, -1, 1, Q("104 mm")))
pocket9 = body.newObject("PartDesign::Pocket", "Pocket008")
pocket9.Profile = sketch12
pocket9.Type = "UpToFirst"

doc.recompute()
